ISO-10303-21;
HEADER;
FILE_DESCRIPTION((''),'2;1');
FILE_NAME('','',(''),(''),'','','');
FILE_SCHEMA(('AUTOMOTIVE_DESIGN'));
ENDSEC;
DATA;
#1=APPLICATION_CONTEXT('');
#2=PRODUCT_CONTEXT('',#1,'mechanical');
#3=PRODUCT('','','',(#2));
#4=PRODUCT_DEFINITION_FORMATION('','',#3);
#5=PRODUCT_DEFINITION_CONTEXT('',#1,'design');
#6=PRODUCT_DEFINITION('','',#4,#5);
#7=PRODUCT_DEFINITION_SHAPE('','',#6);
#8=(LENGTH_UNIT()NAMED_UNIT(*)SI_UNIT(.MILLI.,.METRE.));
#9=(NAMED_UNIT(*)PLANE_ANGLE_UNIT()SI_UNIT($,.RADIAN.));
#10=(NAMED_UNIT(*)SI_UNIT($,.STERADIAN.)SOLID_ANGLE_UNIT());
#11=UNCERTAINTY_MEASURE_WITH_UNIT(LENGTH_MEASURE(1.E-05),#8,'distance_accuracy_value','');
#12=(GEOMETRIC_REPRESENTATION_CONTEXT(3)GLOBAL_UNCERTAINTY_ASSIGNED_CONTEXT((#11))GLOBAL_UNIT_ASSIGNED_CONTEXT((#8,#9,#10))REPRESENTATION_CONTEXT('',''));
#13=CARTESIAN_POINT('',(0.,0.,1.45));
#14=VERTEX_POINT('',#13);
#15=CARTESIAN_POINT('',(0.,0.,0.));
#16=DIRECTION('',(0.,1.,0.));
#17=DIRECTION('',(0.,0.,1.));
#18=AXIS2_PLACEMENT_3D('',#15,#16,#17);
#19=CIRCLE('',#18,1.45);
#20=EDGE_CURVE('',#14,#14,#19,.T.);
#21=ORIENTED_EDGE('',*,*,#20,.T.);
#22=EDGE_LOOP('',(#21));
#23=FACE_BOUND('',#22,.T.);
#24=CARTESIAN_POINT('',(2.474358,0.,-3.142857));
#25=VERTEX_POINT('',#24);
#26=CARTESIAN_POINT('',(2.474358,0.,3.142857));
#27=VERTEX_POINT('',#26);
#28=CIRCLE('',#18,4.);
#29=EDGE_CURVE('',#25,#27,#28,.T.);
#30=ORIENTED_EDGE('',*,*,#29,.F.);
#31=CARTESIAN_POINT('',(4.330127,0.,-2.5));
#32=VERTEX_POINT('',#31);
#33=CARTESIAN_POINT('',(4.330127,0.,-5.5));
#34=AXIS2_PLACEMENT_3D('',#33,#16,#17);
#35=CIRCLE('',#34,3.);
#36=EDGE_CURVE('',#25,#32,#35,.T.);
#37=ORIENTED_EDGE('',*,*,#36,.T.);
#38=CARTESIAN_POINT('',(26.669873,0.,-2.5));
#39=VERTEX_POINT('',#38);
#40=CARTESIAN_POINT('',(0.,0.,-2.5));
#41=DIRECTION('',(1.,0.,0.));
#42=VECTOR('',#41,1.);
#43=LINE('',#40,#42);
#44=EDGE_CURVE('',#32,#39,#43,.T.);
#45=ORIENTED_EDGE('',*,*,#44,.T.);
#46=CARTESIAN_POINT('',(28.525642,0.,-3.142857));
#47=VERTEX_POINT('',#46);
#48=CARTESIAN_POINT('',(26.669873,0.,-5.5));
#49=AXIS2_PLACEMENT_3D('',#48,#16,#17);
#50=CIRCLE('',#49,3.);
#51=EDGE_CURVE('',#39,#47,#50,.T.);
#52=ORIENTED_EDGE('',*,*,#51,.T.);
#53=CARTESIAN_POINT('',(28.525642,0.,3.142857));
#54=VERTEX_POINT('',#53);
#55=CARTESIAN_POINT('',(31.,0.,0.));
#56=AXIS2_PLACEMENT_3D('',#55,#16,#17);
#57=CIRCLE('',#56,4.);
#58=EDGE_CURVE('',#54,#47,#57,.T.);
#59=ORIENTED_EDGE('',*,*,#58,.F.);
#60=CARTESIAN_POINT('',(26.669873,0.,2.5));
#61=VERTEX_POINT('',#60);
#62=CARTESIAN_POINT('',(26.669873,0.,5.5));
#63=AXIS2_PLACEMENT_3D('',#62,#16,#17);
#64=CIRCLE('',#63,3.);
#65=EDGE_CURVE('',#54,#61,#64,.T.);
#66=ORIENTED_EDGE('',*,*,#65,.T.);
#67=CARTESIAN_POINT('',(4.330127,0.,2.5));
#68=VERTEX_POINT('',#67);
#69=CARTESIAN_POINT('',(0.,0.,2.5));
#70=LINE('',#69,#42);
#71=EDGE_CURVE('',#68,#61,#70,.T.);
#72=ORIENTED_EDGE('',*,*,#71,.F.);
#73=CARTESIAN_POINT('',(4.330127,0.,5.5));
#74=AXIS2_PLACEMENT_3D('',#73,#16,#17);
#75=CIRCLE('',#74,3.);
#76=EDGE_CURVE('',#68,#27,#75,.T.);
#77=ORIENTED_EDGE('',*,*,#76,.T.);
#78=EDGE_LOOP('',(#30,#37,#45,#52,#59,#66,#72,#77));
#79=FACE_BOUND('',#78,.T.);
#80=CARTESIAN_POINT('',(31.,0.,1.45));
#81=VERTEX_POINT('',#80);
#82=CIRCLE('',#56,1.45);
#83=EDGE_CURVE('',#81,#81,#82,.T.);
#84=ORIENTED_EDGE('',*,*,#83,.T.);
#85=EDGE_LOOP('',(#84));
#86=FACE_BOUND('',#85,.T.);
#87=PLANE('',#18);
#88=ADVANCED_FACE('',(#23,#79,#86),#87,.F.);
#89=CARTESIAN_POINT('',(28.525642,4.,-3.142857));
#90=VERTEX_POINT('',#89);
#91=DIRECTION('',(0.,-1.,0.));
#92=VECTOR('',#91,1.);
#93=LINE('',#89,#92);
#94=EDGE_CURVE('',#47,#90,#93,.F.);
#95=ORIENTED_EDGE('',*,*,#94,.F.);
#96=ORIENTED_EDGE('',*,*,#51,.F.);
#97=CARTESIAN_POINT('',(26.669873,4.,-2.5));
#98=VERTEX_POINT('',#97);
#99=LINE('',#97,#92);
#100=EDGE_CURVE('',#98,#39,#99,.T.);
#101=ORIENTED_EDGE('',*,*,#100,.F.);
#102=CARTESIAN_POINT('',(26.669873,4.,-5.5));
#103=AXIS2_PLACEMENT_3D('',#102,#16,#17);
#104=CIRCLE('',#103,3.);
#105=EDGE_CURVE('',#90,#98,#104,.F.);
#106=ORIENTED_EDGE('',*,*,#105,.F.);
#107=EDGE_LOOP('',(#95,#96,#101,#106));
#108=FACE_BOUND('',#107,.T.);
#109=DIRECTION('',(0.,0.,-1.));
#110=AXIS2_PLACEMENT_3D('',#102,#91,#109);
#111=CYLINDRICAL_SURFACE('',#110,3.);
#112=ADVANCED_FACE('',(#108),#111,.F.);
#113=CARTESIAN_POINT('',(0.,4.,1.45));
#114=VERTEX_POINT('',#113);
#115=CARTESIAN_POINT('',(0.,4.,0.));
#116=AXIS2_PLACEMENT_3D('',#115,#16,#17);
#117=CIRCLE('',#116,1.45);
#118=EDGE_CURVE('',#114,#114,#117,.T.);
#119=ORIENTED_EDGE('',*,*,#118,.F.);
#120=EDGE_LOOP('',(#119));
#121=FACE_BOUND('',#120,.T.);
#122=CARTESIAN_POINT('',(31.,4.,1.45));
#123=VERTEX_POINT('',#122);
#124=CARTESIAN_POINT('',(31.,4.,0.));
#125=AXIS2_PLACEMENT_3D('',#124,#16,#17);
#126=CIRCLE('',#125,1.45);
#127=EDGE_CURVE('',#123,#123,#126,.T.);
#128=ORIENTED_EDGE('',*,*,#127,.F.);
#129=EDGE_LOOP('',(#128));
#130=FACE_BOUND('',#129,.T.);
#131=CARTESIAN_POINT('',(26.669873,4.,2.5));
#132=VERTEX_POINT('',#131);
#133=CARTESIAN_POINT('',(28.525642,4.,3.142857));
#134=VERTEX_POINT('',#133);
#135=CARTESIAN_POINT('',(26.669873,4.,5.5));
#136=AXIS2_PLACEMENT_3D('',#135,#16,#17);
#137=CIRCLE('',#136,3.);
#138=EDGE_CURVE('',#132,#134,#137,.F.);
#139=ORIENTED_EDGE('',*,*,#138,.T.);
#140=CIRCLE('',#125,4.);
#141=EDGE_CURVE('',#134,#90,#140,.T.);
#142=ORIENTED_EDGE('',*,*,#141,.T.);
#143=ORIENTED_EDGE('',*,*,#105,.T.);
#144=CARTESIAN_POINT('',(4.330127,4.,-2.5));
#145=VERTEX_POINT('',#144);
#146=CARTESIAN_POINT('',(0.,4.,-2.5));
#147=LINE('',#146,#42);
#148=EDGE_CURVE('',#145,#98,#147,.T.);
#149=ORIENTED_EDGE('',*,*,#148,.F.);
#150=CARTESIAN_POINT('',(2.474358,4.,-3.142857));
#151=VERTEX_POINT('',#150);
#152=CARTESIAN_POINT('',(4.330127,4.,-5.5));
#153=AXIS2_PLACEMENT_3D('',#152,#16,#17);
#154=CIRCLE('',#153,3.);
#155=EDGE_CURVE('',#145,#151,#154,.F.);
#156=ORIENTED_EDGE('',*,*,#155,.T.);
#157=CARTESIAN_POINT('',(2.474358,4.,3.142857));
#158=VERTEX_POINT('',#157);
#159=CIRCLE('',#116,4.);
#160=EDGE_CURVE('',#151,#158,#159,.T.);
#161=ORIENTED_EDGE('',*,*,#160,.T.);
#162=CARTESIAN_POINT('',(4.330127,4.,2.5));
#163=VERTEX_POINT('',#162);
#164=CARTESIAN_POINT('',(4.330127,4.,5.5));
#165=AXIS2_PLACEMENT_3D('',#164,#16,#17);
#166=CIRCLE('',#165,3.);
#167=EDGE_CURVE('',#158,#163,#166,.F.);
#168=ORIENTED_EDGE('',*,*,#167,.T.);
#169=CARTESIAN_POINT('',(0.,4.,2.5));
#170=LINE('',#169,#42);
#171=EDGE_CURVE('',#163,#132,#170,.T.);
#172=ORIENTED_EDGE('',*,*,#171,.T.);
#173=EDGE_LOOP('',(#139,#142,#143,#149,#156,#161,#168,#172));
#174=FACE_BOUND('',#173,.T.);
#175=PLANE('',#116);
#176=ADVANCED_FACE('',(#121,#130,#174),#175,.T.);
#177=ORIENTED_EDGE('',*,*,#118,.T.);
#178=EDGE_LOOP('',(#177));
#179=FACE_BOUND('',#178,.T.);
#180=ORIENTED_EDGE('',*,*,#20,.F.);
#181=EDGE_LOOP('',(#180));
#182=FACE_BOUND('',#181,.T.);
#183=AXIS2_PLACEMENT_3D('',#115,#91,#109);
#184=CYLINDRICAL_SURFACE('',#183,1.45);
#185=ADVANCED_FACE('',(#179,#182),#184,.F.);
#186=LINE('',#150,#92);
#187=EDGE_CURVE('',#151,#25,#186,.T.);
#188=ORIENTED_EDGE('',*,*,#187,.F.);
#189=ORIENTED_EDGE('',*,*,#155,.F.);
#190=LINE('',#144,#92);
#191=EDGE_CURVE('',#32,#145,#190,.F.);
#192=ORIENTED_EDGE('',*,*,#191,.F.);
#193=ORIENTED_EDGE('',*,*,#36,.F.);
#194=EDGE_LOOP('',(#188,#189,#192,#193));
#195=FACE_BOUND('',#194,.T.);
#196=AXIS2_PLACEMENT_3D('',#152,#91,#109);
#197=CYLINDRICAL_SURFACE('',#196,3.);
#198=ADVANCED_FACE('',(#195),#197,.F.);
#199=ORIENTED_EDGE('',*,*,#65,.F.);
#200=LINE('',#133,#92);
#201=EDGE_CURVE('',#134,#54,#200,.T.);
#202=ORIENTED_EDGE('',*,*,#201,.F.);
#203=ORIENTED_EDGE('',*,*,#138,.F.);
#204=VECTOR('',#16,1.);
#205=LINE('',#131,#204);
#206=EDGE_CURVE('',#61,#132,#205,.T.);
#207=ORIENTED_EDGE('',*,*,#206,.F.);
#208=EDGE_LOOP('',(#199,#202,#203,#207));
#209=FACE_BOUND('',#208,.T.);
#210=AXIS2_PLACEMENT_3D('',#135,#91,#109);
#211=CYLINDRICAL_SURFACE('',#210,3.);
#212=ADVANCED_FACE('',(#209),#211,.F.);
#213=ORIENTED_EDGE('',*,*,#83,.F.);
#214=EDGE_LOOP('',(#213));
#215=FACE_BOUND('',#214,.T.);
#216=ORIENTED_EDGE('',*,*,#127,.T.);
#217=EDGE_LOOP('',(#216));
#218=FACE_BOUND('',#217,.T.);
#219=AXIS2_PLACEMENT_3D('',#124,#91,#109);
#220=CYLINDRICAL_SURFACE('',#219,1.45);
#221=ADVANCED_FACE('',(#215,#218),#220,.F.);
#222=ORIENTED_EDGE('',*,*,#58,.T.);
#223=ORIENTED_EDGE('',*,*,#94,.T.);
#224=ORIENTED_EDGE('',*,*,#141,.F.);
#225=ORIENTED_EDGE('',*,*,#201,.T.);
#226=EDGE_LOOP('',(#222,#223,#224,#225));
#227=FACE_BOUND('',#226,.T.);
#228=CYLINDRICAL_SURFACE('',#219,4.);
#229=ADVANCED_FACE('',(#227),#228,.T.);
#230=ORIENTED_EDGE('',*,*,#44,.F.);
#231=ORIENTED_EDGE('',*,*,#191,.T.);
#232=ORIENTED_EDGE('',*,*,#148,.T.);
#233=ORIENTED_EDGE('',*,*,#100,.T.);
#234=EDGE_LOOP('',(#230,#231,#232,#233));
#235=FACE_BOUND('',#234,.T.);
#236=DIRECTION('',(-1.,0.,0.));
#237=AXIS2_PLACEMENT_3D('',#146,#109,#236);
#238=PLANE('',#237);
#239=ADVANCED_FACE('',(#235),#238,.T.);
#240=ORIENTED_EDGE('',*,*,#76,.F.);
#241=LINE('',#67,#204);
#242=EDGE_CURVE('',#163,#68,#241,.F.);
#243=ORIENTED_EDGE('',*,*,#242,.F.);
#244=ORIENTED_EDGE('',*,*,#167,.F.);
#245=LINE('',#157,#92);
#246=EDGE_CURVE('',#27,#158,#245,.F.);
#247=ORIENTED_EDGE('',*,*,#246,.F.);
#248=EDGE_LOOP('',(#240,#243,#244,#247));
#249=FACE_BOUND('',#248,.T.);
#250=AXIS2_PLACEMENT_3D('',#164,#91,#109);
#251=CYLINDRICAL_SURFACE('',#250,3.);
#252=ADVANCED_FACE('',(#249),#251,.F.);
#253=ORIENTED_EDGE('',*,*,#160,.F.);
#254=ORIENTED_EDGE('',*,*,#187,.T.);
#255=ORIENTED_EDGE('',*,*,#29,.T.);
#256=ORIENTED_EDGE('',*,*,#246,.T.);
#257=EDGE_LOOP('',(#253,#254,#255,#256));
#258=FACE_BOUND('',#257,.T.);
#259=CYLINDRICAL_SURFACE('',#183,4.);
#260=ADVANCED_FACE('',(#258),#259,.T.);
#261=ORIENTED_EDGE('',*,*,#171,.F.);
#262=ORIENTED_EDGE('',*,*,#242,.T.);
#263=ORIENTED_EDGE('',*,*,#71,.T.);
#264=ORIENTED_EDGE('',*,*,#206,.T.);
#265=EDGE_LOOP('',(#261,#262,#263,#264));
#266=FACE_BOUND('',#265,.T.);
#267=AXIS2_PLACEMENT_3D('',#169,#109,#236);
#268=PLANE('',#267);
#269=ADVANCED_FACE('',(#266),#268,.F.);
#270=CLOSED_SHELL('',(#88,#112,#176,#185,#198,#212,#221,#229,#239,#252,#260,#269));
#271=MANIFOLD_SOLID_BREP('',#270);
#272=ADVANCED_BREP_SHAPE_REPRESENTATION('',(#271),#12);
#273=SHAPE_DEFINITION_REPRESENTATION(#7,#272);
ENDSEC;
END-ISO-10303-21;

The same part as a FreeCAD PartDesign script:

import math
import FreeCAD as App
import Part
import Sketcher
Q = App.Units.Quantity


def edges_at(feature, points):
    """Names of the edges that pass closest to the given points."""
    edges = feature.Shape.Edges
    near = lambda p: min(range(len(edges)), key=lambda i: edges[i].distToShape(Part.Vertex(*p))[0])
    return sorted({f"Edge{near(p) + 1}" for p in points})

doc = App.newDocument("Part")
body = doc.addObject("PartDesign::Body", "Body")

# Sketch on XZ plane
sketch1 = doc.addObject("Sketcher::SketchObject", "Sketch")
body.addObject(sketch1)
sketch1.AttachmentSupport = (doc.XZ_Plane, [""])
sketch1.MapMode = "FlatFace"
sketch1.addGeometry([
    Part.ArcOfCircle(Part.Circle(App.Vector(0, 0, 0), App.Vector(0, 0, 1), 4), math.radians(39), math.radians(321)),  # 0
    Part.LineSegment(App.Vector(3.1, 2.5, 0), App.Vector(27.9, 2.5, 0)),  # 1
    Part.ArcOfCircle(Part.Circle(App.Vector(31, 0, 0), App.Vector(0, 0, 1), 4), math.radians(-141), math.radians(141)),  # 2
    Part.LineSegment(App.Vector(27.9, -2.5, 0), App.Vector(3.1, -2.5, 0)),  # 3
    Part.Circle(App.Vector(0, 0, 0), App.Vector(0, 0, 1), 1.4),  # 4
    Part.Circle(App.Vector(31, 0, 0), App.Vector(0, 0, 1), 1.4),  # 5
], False)
sketch1.addConstraint([
    Sketcher.Constraint("Coincident", 0, 1, 1, 1),
    Sketcher.Constraint("Coincident", 1, 2, 2, 2),
    Sketcher.Constraint("Coincident", 2, 1, 3, 1),
    Sketcher.Constraint("Coincident", 3, 2, 0, 2),
    Sketcher.Constraint("Horizontal", 1),
    Sketcher.Constraint("Horizontal", 3),
    Sketcher.Constraint("Coincident", 0, 3, -1, 1),
    Sketcher.Constraint("Coincident", 4, 3, -1, 1),
    Sketcher.Constraint("Coincident", 5, 3, 2, 3),
    Sketcher.Constraint("Equal", 0, 2),
    Sketcher.Constraint("Equal", 4, 5),
    Sketcher.Constraint("Symmetric", 1, 2, 2, 1, -1),
    Sketcher.Constraint("Radius", 0, Q("4 mm")),
    Sketcher.Constraint("Diameter", 4, Q("2.9 mm")),
    Sketcher.Constraint("DistanceX", -1, 1, 2, 3, Q("31 mm")),
    Sketcher.Constraint("DistanceY", 2, 1, 1, 2, Q("5 mm")),
])
pad1 = doc.addObject("PartDesign::Pad", "Pad")
body.addObject(pad1)
pad1.Profile = sketch1
pad1.Length = 4
pad1.Reversed = True
doc.recompute()

fillet = doc.addObject("PartDesign::Fillet", "Fillet")
body.addObject(fillet)
fillet.Base = (pad1, edges_at(pad1, [
    (27.878, 2, 2.5),
    (3.122, 2, 2.5),
    (3.122, 2, -2.5),
    (27.878, 2, -2.5),
]))
fillet.Radius = 3

doc.recompute()
